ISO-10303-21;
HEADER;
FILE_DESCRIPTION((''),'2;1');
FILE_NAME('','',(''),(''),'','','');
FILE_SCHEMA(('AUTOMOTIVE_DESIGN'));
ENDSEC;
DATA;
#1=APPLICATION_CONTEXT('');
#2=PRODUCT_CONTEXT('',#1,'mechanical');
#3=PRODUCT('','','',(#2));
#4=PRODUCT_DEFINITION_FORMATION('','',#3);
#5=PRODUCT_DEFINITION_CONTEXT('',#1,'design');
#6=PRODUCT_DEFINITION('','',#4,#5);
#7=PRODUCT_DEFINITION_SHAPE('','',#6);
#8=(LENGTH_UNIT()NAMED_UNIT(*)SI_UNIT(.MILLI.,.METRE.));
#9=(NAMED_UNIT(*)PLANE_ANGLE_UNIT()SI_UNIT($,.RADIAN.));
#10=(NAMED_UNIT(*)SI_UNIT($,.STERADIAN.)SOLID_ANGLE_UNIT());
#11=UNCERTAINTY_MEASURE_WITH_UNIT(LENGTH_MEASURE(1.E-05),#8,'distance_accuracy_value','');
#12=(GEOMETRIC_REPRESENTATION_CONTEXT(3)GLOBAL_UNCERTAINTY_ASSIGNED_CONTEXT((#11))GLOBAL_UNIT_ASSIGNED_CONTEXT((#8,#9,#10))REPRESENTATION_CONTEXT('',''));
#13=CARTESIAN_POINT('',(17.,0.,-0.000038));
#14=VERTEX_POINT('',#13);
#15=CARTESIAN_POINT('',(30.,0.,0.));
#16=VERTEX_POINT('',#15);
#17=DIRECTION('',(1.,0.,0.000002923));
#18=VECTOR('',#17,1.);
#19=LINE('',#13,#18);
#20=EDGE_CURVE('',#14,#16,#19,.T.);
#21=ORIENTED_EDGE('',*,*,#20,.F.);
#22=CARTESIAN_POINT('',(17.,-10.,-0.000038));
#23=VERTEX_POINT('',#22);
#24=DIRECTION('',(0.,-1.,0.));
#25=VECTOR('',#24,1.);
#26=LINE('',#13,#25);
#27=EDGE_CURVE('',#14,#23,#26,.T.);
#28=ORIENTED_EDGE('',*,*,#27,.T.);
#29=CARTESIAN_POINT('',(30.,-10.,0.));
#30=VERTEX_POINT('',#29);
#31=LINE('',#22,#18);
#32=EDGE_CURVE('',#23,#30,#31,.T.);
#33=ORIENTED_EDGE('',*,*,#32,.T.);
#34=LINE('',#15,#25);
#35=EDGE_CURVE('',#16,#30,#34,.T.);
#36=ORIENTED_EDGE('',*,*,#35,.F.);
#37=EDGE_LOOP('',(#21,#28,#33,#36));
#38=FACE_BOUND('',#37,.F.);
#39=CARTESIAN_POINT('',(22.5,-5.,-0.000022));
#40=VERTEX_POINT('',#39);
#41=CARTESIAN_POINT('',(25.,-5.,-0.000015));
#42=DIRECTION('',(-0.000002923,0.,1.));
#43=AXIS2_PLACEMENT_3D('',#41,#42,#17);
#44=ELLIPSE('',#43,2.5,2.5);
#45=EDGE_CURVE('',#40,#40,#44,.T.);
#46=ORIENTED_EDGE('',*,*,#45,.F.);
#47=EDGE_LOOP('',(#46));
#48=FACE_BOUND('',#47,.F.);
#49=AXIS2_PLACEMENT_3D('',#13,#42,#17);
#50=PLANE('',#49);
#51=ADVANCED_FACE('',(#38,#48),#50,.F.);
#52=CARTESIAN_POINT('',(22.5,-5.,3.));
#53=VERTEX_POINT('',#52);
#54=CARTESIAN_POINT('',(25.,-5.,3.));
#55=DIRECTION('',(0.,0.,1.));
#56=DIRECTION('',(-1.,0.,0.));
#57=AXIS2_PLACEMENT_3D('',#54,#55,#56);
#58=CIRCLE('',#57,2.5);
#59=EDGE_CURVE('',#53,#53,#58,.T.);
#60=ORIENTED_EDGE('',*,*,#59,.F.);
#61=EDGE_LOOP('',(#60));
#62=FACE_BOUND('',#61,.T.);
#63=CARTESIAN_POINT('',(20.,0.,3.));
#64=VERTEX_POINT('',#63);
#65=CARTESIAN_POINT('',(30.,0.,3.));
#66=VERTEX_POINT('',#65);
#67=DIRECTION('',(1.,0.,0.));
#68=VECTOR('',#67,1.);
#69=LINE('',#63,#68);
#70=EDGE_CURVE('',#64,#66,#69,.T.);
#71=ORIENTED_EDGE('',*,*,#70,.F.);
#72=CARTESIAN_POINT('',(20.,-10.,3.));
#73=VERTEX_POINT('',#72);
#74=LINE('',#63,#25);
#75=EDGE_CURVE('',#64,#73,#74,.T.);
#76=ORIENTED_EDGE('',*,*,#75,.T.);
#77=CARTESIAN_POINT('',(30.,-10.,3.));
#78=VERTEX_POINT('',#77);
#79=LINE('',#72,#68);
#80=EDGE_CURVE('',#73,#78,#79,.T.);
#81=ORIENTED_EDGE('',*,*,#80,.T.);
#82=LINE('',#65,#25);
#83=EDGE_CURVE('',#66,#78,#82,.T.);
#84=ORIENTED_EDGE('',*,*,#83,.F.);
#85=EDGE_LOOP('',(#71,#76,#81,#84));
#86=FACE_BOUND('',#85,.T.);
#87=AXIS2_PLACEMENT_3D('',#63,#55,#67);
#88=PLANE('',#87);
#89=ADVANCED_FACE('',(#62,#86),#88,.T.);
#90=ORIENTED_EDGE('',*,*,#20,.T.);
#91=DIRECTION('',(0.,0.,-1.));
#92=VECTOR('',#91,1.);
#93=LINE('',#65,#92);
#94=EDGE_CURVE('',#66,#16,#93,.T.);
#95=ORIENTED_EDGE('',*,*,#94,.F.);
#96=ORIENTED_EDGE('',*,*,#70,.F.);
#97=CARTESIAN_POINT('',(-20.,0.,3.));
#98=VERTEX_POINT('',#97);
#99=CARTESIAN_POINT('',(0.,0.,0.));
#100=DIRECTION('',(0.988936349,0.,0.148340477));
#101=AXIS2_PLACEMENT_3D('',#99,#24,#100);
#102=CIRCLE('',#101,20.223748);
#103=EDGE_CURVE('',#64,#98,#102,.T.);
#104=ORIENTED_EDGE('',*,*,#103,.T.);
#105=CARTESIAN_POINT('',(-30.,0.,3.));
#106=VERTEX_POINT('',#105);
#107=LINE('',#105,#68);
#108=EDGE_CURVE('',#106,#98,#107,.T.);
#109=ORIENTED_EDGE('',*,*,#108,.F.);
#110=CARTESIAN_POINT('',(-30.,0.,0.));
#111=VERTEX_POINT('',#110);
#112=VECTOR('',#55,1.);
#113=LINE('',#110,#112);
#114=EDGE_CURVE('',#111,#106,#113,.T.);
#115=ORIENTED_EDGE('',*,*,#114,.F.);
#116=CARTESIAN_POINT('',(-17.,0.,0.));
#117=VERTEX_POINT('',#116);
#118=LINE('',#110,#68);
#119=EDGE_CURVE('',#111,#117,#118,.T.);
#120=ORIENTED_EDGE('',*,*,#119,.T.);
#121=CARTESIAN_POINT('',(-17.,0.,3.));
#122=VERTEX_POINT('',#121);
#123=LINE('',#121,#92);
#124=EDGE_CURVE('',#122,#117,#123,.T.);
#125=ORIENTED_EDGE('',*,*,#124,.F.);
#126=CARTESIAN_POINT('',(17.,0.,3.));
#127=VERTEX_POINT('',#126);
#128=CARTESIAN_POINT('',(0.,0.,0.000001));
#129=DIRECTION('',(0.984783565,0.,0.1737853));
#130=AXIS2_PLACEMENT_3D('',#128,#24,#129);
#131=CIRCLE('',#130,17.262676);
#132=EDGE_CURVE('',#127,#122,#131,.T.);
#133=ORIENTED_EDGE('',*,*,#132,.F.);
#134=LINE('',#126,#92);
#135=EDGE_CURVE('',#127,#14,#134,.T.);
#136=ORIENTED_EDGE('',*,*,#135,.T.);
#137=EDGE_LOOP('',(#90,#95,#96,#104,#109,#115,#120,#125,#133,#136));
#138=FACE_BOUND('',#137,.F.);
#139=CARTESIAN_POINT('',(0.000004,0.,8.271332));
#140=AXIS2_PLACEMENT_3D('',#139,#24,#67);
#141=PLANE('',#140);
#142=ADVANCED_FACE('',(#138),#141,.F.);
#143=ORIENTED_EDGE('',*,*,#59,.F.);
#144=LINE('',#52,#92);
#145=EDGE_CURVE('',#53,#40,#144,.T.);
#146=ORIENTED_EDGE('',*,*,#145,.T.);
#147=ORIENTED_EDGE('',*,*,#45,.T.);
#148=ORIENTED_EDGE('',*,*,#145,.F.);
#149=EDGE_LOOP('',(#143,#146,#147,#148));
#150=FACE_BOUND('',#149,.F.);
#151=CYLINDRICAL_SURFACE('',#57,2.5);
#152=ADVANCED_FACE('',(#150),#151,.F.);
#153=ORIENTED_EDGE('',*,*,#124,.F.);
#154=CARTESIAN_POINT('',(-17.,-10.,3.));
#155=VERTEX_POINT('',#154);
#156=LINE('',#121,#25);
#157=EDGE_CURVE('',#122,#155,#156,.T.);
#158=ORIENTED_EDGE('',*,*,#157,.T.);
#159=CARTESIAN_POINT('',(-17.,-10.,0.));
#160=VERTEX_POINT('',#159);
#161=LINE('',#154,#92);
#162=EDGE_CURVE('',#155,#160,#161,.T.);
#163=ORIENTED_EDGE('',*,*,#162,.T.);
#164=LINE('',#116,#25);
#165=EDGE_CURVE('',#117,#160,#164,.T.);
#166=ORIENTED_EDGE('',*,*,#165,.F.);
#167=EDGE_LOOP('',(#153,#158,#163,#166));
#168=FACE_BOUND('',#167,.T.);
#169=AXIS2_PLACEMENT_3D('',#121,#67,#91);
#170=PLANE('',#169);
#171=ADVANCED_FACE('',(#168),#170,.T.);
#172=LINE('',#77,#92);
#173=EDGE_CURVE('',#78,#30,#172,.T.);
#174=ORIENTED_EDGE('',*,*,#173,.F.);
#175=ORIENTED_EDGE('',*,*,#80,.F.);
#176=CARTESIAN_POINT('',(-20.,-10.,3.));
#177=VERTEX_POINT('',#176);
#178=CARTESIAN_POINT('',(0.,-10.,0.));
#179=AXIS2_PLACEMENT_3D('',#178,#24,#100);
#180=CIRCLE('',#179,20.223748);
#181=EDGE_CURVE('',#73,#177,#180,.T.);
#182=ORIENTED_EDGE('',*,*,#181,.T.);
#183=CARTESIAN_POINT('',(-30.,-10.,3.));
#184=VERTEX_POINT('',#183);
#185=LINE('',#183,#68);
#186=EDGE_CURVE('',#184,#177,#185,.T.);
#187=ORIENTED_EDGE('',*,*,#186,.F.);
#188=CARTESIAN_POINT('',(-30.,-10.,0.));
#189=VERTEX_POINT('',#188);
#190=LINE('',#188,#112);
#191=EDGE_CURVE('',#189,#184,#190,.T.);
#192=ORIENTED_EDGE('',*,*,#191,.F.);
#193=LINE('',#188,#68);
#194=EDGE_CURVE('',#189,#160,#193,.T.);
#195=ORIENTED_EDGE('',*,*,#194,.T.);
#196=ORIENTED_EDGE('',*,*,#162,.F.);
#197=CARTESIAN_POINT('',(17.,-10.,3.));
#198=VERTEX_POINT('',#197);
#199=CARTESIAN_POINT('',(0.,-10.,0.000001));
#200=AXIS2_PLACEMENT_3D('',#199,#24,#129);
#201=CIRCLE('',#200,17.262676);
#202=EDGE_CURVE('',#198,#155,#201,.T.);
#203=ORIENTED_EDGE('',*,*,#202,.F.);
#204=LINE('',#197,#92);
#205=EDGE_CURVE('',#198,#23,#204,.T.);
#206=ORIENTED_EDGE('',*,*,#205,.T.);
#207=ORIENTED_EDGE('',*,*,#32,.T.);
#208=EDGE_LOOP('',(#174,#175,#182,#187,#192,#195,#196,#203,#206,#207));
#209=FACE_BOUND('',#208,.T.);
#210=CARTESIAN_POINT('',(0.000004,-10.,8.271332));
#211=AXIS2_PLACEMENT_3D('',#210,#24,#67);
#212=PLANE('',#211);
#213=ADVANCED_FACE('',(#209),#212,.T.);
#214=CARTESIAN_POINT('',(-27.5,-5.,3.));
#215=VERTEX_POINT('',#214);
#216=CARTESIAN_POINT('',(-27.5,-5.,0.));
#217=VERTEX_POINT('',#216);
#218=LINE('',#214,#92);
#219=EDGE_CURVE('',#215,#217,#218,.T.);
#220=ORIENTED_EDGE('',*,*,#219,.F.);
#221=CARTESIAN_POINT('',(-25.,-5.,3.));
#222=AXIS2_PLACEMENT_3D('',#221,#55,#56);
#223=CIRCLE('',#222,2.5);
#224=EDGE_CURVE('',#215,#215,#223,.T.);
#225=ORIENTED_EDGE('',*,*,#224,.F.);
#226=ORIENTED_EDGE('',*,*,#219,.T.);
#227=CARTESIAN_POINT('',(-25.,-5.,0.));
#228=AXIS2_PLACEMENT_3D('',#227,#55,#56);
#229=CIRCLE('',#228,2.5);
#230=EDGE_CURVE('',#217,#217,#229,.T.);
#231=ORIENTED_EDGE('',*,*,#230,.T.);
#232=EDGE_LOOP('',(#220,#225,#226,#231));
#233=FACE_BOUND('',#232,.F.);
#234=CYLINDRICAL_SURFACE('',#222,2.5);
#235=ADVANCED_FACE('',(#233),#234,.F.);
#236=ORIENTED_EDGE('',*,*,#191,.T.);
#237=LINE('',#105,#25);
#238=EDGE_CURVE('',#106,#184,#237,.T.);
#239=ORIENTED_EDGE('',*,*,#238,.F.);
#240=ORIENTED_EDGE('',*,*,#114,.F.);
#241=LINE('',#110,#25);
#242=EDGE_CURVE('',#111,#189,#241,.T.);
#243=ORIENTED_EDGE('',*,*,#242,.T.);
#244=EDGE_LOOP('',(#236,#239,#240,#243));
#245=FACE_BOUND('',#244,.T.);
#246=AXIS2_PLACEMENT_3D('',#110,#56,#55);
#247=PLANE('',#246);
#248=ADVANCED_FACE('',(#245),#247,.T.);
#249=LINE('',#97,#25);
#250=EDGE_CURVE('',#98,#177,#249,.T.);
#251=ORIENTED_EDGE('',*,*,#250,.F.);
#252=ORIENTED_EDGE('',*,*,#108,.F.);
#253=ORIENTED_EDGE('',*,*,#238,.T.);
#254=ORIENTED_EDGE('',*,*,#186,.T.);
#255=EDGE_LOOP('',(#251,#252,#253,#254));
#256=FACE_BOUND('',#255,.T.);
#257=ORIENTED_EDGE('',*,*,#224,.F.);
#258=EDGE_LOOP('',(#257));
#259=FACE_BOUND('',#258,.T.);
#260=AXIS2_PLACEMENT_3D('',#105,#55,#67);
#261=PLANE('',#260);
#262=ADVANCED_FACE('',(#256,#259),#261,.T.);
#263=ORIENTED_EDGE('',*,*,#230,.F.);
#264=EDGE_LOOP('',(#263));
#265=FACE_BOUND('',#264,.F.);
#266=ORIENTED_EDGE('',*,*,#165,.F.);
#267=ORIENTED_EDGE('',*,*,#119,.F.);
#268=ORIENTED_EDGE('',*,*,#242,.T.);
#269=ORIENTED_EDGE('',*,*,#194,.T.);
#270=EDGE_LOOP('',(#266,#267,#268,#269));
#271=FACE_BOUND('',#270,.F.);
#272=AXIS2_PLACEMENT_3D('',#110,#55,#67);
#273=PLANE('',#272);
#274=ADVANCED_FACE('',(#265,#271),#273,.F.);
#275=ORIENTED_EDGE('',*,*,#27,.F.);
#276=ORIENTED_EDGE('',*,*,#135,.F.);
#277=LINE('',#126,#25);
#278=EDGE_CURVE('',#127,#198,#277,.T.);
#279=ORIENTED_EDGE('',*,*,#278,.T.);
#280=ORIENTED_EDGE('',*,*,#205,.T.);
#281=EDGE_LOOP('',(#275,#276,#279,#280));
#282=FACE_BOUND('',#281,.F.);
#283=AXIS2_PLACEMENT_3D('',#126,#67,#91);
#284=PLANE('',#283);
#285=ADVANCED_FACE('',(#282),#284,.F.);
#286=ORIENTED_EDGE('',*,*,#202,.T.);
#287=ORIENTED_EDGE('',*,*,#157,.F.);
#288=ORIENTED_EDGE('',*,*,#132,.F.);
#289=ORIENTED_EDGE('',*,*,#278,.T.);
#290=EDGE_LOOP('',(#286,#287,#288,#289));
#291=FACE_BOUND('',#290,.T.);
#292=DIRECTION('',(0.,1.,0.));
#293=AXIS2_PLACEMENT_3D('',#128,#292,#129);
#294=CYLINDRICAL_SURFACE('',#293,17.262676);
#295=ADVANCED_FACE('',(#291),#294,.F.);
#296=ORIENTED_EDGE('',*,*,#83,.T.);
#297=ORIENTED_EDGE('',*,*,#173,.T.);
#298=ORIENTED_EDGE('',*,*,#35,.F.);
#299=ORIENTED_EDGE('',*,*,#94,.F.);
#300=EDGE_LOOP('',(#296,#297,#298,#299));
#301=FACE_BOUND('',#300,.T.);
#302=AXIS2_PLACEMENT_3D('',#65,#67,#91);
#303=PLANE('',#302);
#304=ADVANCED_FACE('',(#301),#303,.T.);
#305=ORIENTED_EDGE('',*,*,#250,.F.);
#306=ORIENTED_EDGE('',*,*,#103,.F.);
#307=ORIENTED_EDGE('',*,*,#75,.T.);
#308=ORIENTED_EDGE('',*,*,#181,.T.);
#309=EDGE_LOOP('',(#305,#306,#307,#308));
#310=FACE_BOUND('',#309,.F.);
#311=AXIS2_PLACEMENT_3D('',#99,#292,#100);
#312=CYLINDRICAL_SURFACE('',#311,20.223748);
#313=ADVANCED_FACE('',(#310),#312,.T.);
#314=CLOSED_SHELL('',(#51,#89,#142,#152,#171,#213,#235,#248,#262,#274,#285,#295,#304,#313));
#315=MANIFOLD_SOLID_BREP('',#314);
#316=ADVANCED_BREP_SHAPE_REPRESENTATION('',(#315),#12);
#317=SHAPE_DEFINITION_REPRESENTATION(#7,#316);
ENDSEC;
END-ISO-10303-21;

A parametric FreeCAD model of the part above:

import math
import FreeCAD as App
import Part
import Sketcher

V = App.Vector
Q = App.Units.Quantity

doc = App.newDocument("Part")
body = doc.addObject("PartDesign::Body", "Body")

# Sketch on XZ plane
sketch1 = body.newObject("Sketcher::SketchObject", "Sketch")
sketch1.AttachmentSupport = (doc.getObject("XZ_Plane"), [""])
sketch1.MapMode = "FlatFace"
sketch1.addGeometry([
    Part.LineSegment(V(-30, 0, 0), V(-17, 0, 0)),  # 0
    Part.LineSegment(V(-17, 0, 0), V(-17, 3, 0)),  # 1
    Part.ArcOfCircle(Part.Circle(V(0, 0, 0), V(0, 0, 1), 17.3), math.radians(10), math.radians(170)),  # 2
    Part.LineSegment(V(17, 3, 0), V(17, 0, 0)),  # 3
    Part.LineSegment(V(17, 0, 0), V(30, 0, 0)),  # 4
    Part.LineSegment(V(30, 0, 0), V(30, 3, 0)),  # 5
    Part.LineSegment(V(30, 3, 0), V(20, 3, 0)),  # 6
    Part.ArcOfCircle(Part.Circle(V(0, 0, 0), V(0, 0, 1), 20.2), math.radians(9), math.radians(171)),  # 7
    Part.LineSegment(V(-20, 3, 0), V(-30, 3, 0)),  # 8
    Part.LineSegment(V(-30, 3, 0), V(-30, 0, 0)),  # 9
], False)
sketch1.addConstraint([
    Sketcher.Constraint("Coincident", 0, 2, 1, 1),
    Sketcher.Constraint("Coincident", 1, 2, 2, 2),
    Sketcher.Constraint("Coincident", 2, 1, 3, 1),
    Sketcher.Constraint("Coincident", 3, 2, 4, 1),
    Sketcher.Constraint("Coincident", 4, 2, 5, 1),
    Sketcher.Constraint("Coincident", 5, 2, 6, 1),
    Sketcher.Constraint("Coincident", 6, 2, 7, 1),
    Sketcher.Constraint("Coincident", 7, 2, 8, 1),
    Sketcher.Constraint("Coincident", 8, 2, 9, 1),
    Sketcher.Constraint("Coincident", 9, 2, 0, 1),
    Sketcher.Constraint("Horizontal", 0),
    Sketcher.Constraint("Vertical", 1),
    Sketcher.Constraint("Vertical", 3),
    Sketcher.Constraint("Vertical", 5),
    Sketcher.Constraint("Horizontal", 6),
    Sketcher.Constraint("Horizontal", 8),
    Sketcher.Constraint("Vertical", 9),
    Sketcher.Constraint("Coincident", 2, 3, -1, 1),
    Sketcher.Constraint("Coincident", 7, 3, -1, 1),
    Sketcher.Constraint("Symmetric", 4, 2, 9, 2, -1, 1),
    Sketcher.Constraint("PointOnObject", 0, 2, -1),
    Sketcher.Constraint("Horizontal", 1, 2, 2, 1),
    Sketcher.Constraint("Horizontal", 2, 1, 5, 2),
    Sketcher.Constraint("Horizontal", 6, 2, 7, 2),
    Sketcher.Constraint("DistanceX", 0, 1, 0, 2, Q("13 mm")),
    Sketcher.Constraint("DistanceX", 6, 2, 6, 1, Q("10 mm")),
    Sketcher.Constraint("DistanceY", 1, 1, 1, 2, Q("3 mm")),
    Sketcher.Constraint("DistanceX", 0, 2, -1, 1, Q("17 mm")),
    Sketcher.Constraint("DistanceY", 3, 2, 3, 1, Q("3.000038 mm")),
])
pad1 = body.newObject("PartDesign::Pad", "Pad")
pad1.Profile = sketch1
pad1.Length = 10

# Sketch on XY plane
sketch2 = body.newObject("Sketcher::SketchObject", "Sketch001")
sketch2.AttachmentSupport = (doc.getObject("XY_Plane"), [""])
sketch2.MapMode = "FlatFace"
sketch2.AttachmentOffset = App.Placement(V(0, 0, 3), App.Rotation())
sketch2.addGeometry([
    Part.Circle(V(25, -5, 0), V(0, 0, 1), 2.5),
    Part.Circle(V(-25, -5, 0), V(0, 0, 1), 2.5),
], False)
sketch2.addConstraint([
    Sketcher.Constraint("Equal", 0, 1),
    Sketcher.Constraint("Symmetric", 0, 3, 1, 3, -2),
    Sketcher.Constraint("Diameter", 0, Q("5 mm")),
    Sketcher.Constraint("DistanceX", -1, 1, 0, 3, Q("25 mm")),
    Sketcher.Constraint("DistanceY", 0, 3, -1, 1, Q("5 mm")),
])
pocket1 = body.newObject("PartDesign::Pocket", "Pocket")
pocket1.Profile = sketch2
pocket1.Length = 4

doc.recompute()
